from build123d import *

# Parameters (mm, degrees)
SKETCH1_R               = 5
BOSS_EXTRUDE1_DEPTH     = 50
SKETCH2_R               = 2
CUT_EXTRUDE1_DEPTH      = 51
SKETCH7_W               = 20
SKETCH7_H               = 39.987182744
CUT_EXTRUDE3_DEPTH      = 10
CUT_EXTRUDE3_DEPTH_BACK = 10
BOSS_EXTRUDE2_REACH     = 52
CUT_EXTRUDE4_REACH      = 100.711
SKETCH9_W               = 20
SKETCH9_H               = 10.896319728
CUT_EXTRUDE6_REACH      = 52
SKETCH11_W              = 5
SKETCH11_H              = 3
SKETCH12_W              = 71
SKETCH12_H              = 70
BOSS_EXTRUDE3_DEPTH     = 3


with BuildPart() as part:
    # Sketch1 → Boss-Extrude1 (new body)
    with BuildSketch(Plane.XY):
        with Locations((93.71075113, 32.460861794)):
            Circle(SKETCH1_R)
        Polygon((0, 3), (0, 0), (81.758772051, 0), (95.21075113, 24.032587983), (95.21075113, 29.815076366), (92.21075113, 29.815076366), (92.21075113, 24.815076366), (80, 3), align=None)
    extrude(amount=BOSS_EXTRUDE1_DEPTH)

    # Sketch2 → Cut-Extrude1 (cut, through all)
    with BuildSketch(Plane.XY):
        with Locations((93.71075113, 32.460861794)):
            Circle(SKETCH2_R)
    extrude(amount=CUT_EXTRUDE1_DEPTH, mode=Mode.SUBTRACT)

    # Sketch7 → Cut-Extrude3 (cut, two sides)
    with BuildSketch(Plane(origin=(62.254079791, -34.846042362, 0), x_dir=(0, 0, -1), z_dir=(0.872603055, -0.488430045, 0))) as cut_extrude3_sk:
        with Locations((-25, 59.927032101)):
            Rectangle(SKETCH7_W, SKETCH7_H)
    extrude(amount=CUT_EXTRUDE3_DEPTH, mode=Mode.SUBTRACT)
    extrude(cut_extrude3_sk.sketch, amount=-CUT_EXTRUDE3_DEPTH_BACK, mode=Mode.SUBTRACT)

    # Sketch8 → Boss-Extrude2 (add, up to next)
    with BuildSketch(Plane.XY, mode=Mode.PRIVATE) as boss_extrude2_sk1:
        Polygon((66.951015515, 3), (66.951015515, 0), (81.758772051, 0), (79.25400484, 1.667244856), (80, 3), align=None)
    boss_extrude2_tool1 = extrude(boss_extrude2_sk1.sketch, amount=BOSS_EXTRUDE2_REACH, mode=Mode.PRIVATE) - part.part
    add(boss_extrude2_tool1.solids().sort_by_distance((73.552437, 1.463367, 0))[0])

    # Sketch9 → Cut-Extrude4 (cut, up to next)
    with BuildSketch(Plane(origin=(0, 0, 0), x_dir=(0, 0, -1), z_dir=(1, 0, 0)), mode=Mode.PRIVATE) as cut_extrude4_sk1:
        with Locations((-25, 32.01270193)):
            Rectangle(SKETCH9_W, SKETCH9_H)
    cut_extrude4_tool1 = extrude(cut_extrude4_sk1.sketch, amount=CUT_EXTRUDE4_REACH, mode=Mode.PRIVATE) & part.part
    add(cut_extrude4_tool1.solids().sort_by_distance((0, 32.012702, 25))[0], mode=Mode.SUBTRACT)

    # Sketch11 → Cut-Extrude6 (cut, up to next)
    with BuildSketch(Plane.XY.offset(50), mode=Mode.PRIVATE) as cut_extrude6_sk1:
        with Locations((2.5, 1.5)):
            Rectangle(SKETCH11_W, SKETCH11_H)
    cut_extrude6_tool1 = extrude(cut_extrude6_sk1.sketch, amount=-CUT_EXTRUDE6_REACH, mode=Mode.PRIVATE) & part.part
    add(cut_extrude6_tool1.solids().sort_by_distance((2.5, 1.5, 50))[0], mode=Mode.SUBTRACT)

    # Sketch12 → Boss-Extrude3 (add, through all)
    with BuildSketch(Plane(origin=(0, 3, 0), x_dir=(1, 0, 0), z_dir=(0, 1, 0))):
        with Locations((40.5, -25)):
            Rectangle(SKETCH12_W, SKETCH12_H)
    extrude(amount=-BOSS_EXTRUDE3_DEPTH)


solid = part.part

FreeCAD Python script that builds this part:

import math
import FreeCAD as App
import Part
import Sketcher
from FreeCAD import Vector


def add_polygon(sketch, points):
    """Adds a closed chain of lines whose ends are joined by coincident constraints."""
    first, n = sketch.GeometryCount, len(points)
    for a, b in zip(points, points[1:] + points[:1]):
        sketch.addGeometry(Part.LineSegment(App.Vector(*a, 0), App.Vector(*b, 0)), False)
    for i in range(n):
        sketch.addConstraint(Sketcher.Constraint("Coincident", first + i, 2, first + (i + 1) % n, 1))

doc = App.newDocument("Part")
params = doc.addObject("Spreadsheet::Sheet", "Params")
for row, (alias, value) in enumerate([
    ("sketch1_radius", "5 mm"),
    ("sketch1_width", "80 mm"),
    ("sketch1_height", "3 mm"),
    ("sketch1_length", "25 mm"),
    ("pad1_length", "50 mm"),
    ("sketch2_diameter", "4 mm"),
    ("sketch3_width", "20 mm"),
    ("pocket2_length", "10 mm"),
    ("pocket2_length2", "10 mm"),
    ("sketch4_height", "3 mm"),
    ("sketch5_height", "20 mm"),
    ("pocket3_length", "90.70493 mm"),
    ("sketch6_width", "5 mm"),
    ("sketch6_height", "3 mm"),
    ("sketch7_width", "71 mm"),
    ("sketch7_height", "70 mm"),
], start=1):
    params.set(f"A{row}", alias)
    params.set(f"B{row}", "=" + value)
    params.setAlias(f"B{row}", alias)

body = doc.addObject("PartDesign::Body", "Body")

sketch1 = body.newObject("Sketcher::SketchObject", "Sketch")
sketch1.AttachmentSupport = (doc.getObject("XY_Plane"), [""])
sketch1.MapMode = "FlatFace"
sketch1.addGeometry([
    Part.ArcOfCircle(Part.Circle(Vector(93.710751, 32.460862, 0), Vector(0, 0, 1), 5), math.radians(-72.542397), math.radians(252.542397)),
    Part.LineSegment(Vector(92.210751, 27.691166, 0), Vector(92.210751, 24.815076, 0)),
    Part.LineSegment(Vector(92.210751, 24.815076, 0), Vector(80, 3, 0)),
    Part.LineSegment(Vector(80, 3, 0), Vector(0, 3, 0)),
    Part.LineSegment(Vector(0, 3, 0), Vector(0, 0, 0)),
    Part.LineSegment(Vector(0, 0, 0), Vector(81.758772, 0, 0)),
    Part.LineSegment(Vector(81.758772, 0, 0), Vector(95.210751, 24.032588, 0)),
    Part.LineSegment(Vector(95.210751, 24.032588, 0), Vector(95.210751, 27.691166, 0)),
], False)
sketch1.addConstraint([
    Sketcher.Constraint("Coincident", 0, 2, 1, 1),
    Sketcher.Constraint("Coincident", 1, 2, 2, 1),
    Sketcher.Constraint("Coincident", 2, 2, 3, 1),
    Sketcher.Constraint("Coincident", 3, 2, 4, 1),
    Sketcher.Constraint("Coincident", 4, 2, 5, 1),
    Sketcher.Constraint("Coincident", 5, 2, 6, 1),
    Sketcher.Constraint("Coincident", 6, 2, 7, 1),
    Sketcher.Constraint("Coincident", 7, 2, 0, 1),
    Sketcher.Constraint("Vertical", 1),
    Sketcher.Constraint("Horizontal", 3),
    Sketcher.Constraint("Vertical", 4),
    Sketcher.Constraint("Horizontal", 5),
    Sketcher.Constraint("Vertical", 7),
    Sketcher.Constraint("Coincident", 4, 2, -1, 1),
    Sketcher.Constraint("Parallel", 2, 6),
    Sketcher.Constraint("Horizontal", 0, 2, 7, 2),
    Sketcher.Constraint("Radius", 0, 5.0),
    Sketcher.Constraint("DistanceX", 3, 2, 3, 1, 80.0),
    Sketcher.Constraint("DistanceY", 4, 2, 4, 1, 3.0),
    Sketcher.Constraint("Distance", 2, 25.0),
    Sketcher.Constraint("DistanceX", 1, 2, 6, 2, 3.0),
    Sketcher.Constraint("DistanceY", 1, 2, 1, 1, 2.876089),
    Sketcher.Constraint("Distance", 6, 27.54126),
    Sketcher.Constraint("DistanceX", 5, 1, 5, 2, 81.758772),
])
sketch1.setExpression("Constraints[16]", "Params.sketch1_radius")
sketch1.setExpression("Constraints[17]", "Params.sketch1_width")
sketch1.setExpression("Constraints[18]", "Params.sketch1_height")
sketch1.setExpression("Constraints[19]", "Params.sketch1_length")
pad1 = body.newObject("PartDesign::Pad", "Pad")
pad1.Profile = sketch1
pad1.setExpression("Length", "Params.pad1_length")

sketch2 = body.newObject("Sketcher::SketchObject", "Sketch001")
sketch2.AttachmentSupport = (doc.getObject("XY_Plane"), [""])
sketch2.MapMode = "FlatFace"
sketch2.addGeometry(Part.Circle(Vector(93.710751, 32.460862, 0), Vector(0, 0, 1), 2), False)
sketch2.addConstraint([
    Sketcher.Constraint("Diameter", 0, 4.0),
    Sketcher.Constraint("DistanceX", -1, 1, 0, 3, 93.710751),
    Sketcher.Constraint("DistanceY", -1, 1, 0, 3, 32.460862),
])
sketch2.setExpression("Constraints[0]", "Params.sketch2_diameter")
pocket1 = body.newObject("PartDesign::Pocket", "Pocket")
pocket1.Profile = sketch2
pocket1.Type = "ThroughAll"
pocket1.Reversed = True

sketch3 = body.newObject("Sketcher::SketchObject", "Sketch002")
sketch3.Placement = App.Placement(Vector(62.25408, -34.846042, 0), App.Rotation(Vector(0, 0, -1), Vector(0.488430045, 0.872603055, 0), Vector(0.872603055, -0.488430045, 0), "ZXY"))
add_polygon(sketch3, [(-35, 79.920624), (-35, 39.933441), (-15, 39.933441), (-15, 79.920624)])
sketch3.addConstraint([
    Sketcher.Constraint("Vertical", 0),
    Sketcher.Constraint("Horizontal", 1),
    Sketcher.Constraint("Vertical", 2),
    Sketcher.Constraint("Horizontal", 3),
    Sketcher.Constraint("DistanceX", 1, 1, 1, 2, 20.0),
    Sketcher.Constraint("DistanceX", 0, 2, -1, 1, 35.0),
    Sketcher.Constraint("DistanceY", 0, 2, 0, 1, 39.987183),
    Sketcher.Constraint("DistanceY", -1, 1, 0, 2, 39.933441),
])
sketch3.setExpression("Constraints[8]", "Params.sketch3_width")
pocket2 = body.newObject("PartDesign::Pocket", "Pocket001")
pocket2.Profile = sketch3
pocket2.Type = "TwoLengths"
pocket2.setExpression("Length", "Params.pocket2_length")
pocket2.setExpression("Length2", "Params.pocket2_length2")
pocket2.Reversed = True

sketch4 = body.newObject("Sketcher::SketchObject", "Sketch003")
sketch4.AttachmentSupport = (doc.getObject("XY_Plane"), [""])
sketch4.MapMode = "FlatFace"
add_polygon(sketch4, [(66.951016, 3), (66.951016, 0), (81.758772, 0), (79.254005, 1.667245), (80, 3)])
sketch4.addConstraint([
    Sketcher.Constraint("Vertical", 0),
    Sketcher.Constraint("Horizontal", 1),
    Sketcher.Constraint("Horizontal", 4),
    Sketcher.Constraint("PointOnObject", 0, 2, -1),
    Sketcher.Constraint("DistanceY", 0, 2, 0, 1, 3.0),
    Sketcher.Constraint("DistanceX", -1, 1, 3, 2, 80.0),
    Sketcher.Constraint("DistanceX", 1, 1, 1, 2, 14.807757),
    Sketcher.Constraint("DistanceX", 4, 2, 4, 1, 13.048984),
    Sketcher.Constraint("DistanceX", 0, 2, 2, 2, 12.302989),
    Sketcher.Constraint("Distance", 2, 3.008914),
])
sketch4.setExpression("Constraints[9]", "Params.sketch4_height")
pad2 = body.newObject("PartDesign::Pad", "Pad001")
pad2.Profile = sketch4
pad2.Type = "UpToFirst"

sketch5 = body.newObject("Sketcher::SketchObject", "Sketch004")
sketch5.AttachmentSupport = (doc.getObject("YZ_Plane"), [""])
sketch5.MapMode = "FlatFace"
add_polygon(sketch5, [(37.460862, 35), (26.564542, 35), (26.564542, 15), (37.460862, 15)])
sketch5.addConstraint([
    Sketcher.Constraint("Horizontal", 0),
    Sketcher.Constraint("Vertical", 1),
    Sketcher.Constraint("Horizontal", 2),
    Sketcher.Constraint("Vertical", 3),
    Sketcher.Constraint("DistanceY", 1, 2, 1, 1, 20.0),
    Sketcher.Constraint("DistanceY", -1, 1, 0, 2, 35.0),
    Sketcher.Constraint("DistanceX", 0, 2, 0, 1, 10.89632),
    Sketcher.Constraint("DistanceX", -1, 1, 2, 2, 37.460862),
])
sketch5.setExpression("Constraints[8]", "Params.sketch5_height")
pocket3 = body.newObject("PartDesign::Pocket", "Pocket002")
pocket3.Profile = sketch5
pocket3.setExpression("Length", "Params.pocket3_length")
pocket3.Reversed = True

sketch6 = body.newObject("Sketcher::SketchObject", "Sketch005")
sketch6.AttachmentSupport = (doc.getObject("XY_Plane"), [""])
sketch6.MapMode = "FlatFace"
sketch6.AttachmentOffset = App.Placement(Vector(0, 0, 50), App.Rotation())
add_polygon(sketch6, [(0, 3), (0, 0), (5, 0), (5, 3)])
sketch6.addConstraint([
    Sketcher.Constraint("Vertical", 0),
    Sketcher.Constraint("Horizontal", 1),
    Sketcher.Constraint("Vertical", 2),
    Sketcher.Constraint("Horizontal", 3),
    Sketcher.Constraint("Coincident", 0, 2, -1, 1),
    Sketcher.Constraint("DistanceX", 1, 1, 1, 2, 5.0),
    Sketcher.Constraint("DistanceY", 0, 2, 0, 1, 3.0),
])
sketch6.setExpression("Constraints[9]", "Params.sketch6_width")
sketch6.setExpression("Constraints[10]", "Params.sketch6_height")
pocket4 = body.newObject("PartDesign::Pocket", "Pocket003")
pocket4.Profile = sketch6
pocket4.Type = "UpToFirst"

sketch7 = body.newObject("Sketcher::SketchObject", "Sketch006")
sketch7.AttachmentSupport = (doc.getObject("XZ_Plane"), [""])
sketch7.MapMode = "FlatFace"
sketch7.AttachmentOffset = App.Placement(Vector(0, 0, -3), App.Rotation())
add_polygon(sketch7, [(5, -10), (5, 60), (76, 60), (76, -10)])
sketch7.addConstraint([
    Sketcher.Constraint("Vertical", 0),
    Sketcher.Constraint("Horizontal", 1),
    Sketcher.Constraint("Vertical", 2),
    Sketcher.Constraint("Horizontal", 3),
    Sketcher.Constraint("DistanceX", 1, 1, 1, 2, 71.0),
    Sketcher.Constraint("DistanceY", 0, 1, 0, 2, 70.0),
    Sketcher.Constraint("DistanceX", -1, 1, 0, 2, 5.0),
    Sketcher.Constraint("DistanceY", -1, 1, 0, 2, 60.0),
])
sketch7.setExpression("Constraints[8]", "Params.sketch7_width")
sketch7.setExpression("Constraints[9]", "Params.sketch7_height")
pad3 = body.newObject("PartDesign::Pad", "Pad002")
pad3.Profile = sketch7
pad3.Type = "UpToLast"

doc.recompute()
